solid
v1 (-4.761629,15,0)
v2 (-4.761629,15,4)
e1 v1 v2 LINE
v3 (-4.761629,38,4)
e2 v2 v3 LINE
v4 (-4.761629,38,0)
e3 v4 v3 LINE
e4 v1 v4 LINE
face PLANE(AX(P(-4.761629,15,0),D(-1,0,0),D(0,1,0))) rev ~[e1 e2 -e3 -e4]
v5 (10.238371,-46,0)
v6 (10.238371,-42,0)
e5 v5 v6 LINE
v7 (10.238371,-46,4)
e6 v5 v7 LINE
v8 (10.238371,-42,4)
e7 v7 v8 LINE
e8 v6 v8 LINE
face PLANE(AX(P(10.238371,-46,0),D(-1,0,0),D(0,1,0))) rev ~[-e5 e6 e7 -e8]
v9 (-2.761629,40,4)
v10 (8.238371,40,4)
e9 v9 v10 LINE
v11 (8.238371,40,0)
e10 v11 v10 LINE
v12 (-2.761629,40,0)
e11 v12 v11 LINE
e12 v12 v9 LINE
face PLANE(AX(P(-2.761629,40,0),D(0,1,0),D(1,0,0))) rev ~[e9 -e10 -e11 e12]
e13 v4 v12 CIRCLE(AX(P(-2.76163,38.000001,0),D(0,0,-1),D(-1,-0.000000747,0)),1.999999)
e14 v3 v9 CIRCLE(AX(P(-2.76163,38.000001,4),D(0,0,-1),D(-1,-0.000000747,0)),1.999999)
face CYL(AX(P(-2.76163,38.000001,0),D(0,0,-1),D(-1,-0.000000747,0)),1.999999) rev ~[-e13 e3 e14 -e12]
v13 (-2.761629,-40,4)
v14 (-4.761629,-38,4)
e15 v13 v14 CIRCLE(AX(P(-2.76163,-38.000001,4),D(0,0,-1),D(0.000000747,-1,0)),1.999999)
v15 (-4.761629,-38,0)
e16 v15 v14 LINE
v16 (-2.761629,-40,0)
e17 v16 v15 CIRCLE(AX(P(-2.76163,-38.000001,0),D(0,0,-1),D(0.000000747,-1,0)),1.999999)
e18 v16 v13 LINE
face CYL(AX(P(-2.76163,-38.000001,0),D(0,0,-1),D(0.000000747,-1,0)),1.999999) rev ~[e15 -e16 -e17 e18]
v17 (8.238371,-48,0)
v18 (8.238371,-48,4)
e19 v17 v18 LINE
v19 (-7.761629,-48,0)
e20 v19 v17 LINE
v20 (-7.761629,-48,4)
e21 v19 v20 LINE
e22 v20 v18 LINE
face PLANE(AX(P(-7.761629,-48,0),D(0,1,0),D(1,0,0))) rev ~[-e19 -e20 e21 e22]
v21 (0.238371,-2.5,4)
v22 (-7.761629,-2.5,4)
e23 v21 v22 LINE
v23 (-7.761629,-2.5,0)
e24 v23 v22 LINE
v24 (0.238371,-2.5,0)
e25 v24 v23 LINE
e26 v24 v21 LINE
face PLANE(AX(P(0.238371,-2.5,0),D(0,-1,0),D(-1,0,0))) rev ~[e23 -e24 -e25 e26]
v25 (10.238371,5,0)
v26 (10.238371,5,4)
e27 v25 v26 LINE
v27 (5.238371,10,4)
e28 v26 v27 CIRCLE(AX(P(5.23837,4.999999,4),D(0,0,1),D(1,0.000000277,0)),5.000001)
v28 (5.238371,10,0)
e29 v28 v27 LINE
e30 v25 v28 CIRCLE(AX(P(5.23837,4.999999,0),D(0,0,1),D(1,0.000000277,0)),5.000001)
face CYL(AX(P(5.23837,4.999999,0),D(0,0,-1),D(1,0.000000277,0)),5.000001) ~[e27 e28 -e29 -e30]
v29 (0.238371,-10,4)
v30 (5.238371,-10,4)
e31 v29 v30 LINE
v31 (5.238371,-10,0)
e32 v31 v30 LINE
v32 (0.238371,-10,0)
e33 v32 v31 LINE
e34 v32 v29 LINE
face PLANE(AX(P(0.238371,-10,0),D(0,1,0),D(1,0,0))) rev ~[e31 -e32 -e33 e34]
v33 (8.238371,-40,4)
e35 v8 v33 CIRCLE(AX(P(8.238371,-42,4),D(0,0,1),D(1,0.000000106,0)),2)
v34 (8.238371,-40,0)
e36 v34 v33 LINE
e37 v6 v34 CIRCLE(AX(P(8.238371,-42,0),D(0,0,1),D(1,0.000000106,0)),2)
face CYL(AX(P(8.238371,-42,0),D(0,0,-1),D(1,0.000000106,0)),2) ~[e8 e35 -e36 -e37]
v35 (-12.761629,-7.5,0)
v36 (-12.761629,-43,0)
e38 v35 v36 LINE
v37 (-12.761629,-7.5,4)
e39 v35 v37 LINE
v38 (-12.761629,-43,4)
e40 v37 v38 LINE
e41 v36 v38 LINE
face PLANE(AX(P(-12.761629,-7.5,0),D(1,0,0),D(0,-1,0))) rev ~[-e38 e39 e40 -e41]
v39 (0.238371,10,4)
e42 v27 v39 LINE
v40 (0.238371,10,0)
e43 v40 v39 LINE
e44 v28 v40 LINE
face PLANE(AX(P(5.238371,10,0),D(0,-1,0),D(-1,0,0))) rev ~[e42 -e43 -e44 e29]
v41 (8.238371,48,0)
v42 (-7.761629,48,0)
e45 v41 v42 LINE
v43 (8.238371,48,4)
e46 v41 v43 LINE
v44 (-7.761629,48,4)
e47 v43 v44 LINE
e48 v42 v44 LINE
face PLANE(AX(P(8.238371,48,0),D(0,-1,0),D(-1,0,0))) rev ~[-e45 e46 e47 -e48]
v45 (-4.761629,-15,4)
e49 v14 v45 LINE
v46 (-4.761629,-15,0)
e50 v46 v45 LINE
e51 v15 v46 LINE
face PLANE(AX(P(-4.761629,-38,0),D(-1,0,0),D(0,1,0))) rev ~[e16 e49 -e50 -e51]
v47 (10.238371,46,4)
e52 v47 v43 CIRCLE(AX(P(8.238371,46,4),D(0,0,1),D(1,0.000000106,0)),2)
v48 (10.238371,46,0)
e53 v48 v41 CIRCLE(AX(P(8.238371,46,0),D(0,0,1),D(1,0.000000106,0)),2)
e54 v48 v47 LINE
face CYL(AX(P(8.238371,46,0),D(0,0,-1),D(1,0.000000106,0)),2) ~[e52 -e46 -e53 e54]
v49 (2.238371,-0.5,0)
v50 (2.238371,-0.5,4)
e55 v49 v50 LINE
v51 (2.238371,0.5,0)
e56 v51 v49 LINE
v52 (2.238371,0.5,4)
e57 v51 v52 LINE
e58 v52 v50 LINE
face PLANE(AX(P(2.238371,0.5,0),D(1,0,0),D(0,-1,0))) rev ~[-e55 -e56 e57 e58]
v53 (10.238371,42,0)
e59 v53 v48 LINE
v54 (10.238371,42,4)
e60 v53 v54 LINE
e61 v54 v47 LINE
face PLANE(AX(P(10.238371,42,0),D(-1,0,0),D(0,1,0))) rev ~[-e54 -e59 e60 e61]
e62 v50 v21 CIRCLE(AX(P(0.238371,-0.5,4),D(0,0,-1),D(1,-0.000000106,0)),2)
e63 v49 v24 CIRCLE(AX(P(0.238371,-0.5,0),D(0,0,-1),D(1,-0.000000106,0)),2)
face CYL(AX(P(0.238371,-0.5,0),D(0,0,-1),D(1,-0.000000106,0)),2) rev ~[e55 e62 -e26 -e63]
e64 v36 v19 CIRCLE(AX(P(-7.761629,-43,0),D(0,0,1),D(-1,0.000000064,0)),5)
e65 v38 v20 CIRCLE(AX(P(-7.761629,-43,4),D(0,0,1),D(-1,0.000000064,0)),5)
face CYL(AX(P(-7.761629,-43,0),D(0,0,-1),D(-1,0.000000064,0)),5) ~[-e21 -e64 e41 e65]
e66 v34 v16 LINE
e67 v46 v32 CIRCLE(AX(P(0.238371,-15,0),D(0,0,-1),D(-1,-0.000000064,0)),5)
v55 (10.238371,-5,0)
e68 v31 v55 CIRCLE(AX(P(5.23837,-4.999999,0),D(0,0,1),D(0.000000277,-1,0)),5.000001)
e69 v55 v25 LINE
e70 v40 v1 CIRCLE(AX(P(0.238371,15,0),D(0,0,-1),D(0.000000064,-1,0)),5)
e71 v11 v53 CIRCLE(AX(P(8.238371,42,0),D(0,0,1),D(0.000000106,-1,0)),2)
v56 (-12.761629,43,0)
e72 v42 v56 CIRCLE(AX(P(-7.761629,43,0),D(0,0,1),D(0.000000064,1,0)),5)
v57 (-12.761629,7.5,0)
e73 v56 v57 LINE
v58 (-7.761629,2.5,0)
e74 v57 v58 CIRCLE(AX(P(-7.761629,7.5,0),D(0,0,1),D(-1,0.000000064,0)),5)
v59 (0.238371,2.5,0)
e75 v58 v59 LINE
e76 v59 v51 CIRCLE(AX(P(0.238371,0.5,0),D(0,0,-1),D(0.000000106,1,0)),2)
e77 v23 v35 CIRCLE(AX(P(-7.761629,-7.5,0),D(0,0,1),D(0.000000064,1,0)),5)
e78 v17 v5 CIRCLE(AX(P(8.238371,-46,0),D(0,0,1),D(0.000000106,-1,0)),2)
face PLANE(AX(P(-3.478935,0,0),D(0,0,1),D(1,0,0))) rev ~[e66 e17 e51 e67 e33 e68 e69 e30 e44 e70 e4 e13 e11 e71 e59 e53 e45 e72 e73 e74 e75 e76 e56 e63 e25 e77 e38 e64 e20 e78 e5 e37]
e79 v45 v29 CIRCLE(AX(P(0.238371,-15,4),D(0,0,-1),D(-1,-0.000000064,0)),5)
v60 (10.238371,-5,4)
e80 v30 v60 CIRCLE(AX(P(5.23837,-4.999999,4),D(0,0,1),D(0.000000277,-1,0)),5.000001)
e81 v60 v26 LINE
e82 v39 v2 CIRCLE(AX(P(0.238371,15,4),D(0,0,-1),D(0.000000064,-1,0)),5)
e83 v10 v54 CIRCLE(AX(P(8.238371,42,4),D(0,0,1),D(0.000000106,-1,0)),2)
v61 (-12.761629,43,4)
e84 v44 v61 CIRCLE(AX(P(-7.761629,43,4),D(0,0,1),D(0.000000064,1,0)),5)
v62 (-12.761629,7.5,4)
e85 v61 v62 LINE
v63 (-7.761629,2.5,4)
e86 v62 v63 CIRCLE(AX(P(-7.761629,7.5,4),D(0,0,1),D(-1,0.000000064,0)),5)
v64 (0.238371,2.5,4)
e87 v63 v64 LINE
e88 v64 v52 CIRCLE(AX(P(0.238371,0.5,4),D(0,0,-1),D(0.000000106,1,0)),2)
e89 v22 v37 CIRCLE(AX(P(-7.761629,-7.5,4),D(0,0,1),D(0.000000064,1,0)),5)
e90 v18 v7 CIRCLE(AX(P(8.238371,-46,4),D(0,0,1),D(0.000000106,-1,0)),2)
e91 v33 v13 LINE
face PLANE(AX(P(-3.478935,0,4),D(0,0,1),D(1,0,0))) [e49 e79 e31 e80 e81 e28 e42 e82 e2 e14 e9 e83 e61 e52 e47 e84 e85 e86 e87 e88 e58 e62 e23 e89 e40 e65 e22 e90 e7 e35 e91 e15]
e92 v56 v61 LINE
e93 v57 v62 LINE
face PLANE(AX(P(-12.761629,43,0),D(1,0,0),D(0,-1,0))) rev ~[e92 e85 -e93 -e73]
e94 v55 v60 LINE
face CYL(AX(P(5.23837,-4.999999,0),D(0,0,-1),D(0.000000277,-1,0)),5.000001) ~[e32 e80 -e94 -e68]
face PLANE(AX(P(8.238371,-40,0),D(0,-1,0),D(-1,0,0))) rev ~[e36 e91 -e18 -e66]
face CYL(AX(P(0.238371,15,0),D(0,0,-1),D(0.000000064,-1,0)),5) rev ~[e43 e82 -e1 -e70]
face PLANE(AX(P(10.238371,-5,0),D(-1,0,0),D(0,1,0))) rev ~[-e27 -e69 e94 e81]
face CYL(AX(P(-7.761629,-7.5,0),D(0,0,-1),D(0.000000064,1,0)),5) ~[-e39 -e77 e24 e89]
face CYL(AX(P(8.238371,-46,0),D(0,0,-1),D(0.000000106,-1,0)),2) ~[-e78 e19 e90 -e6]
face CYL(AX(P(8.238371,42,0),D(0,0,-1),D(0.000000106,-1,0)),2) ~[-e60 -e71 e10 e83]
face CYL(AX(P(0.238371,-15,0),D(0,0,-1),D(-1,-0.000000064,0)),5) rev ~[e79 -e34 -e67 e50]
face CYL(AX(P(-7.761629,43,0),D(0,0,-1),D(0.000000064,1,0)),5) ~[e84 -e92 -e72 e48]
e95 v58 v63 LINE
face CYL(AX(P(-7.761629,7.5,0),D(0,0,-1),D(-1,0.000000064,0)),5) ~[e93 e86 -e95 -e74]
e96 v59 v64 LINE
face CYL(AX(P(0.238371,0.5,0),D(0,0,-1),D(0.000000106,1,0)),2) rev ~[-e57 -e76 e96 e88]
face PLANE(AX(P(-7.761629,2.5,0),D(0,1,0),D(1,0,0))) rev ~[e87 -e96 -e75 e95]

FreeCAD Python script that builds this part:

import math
import FreeCAD as App
import Part
import Sketcher
from FreeCAD import Vector

doc = App.newDocument("Part")
body = doc.addObject("PartDesign::Body", "Body")

# Sketch on XY plane
sketch1 = body.newObject("Sketcher::SketchObject", "Sketch")
sketch1.AttachmentSupport = (doc.getObject("XY_Plane"), [""])
sketch1.MapMode = "FlatFace"
sketch1.addGeometry(Part.ArcOfCircle(Part.Circle(Vector(8.2, 46, 0), Vector(0, 0, 1), 2), math.radians(0), math.radians(90)), False)
sketch1.addGeometry(Part.LineSegment(Vector(8.2, 48, 0), Vector(-7.8, 48, 0)), False)
sketch1.addGeometry(Part.ArcOfCircle(Part.Circle(Vector(-7.8, 43, 0), Vector(0, 0, 1), 5), math.radians(90), math.radians(180)), False)
sketch1.addGeometry(Part.LineSegment(Vector(-12.8, 43, 0), Vector(-12.8, 7.5, 0)), False)
sketch1.addGeometry(Part.ArcOfCircle(Part.Circle(Vector(-7.8, 7.5, 0), Vector(0, 0, 1), 5), math.radians(180), math.radians(270)), False)
sketch1.addGeometry(Part.LineSegment(Vector(-7.8, 2.5, 0), Vector(0.2, 2.5, 0)), False)
sketch1.addGeometry(Part.ArcOfCircle(Part.Circle(Vector(0.2, 0.5, 0), Vector(0, 0, 1), 2), math.radians(0), math.radians(90)), False)
sketch1.addGeometry(Part.LineSegment(Vector(2.2, 0.5, 0), Vector(2.2, -0.5, 0)), False)
sketch1.addGeometry(Part.ArcOfCircle(Part.Circle(Vector(0.2, -0.5, 0), Vector(0, 0, 1), 2), math.radians(-90), math.radians(0)), False)
sketch1.addGeometry(Part.LineSegment(Vector(0.2, -2.5, 0), Vector(-7.8, -2.5, 0)), False)
sketch1.addGeometry(Part.ArcOfCircle(Part.Circle(Vector(-7.8, -7.5, 0), Vector(0, 0, 1), 5), math.radians(90), math.radians(180)), False)
sketch1.addGeometry(Part.LineSegment(Vector(-12.8, -7.5, 0), Vector(-12.8, -43, 0)), False)
sketch1.addGeometry(Part.ArcOfCircle(Part.Circle(Vector(-7.8, -43, 0), Vector(0, 0, 1), 5), math.radians(180), math.radians(270)), False)
sketch1.addGeometry(Part.LineSegment(Vector(-7.8, -48, 0), Vector(8.2, -48, 0)), False)
sketch1.addGeometry(Part.ArcOfCircle(Part.Circle(Vector(8.2, -46, 0), Vector(0, 0, 1), 2), math.radians(-90), math.radians(0)), False)
sketch1.addGeometry(Part.LineSegment(Vector(10.2, -46, 0), Vector(10.2, -42, 0)), False)
sketch1.addGeometry(Part.ArcOfCircle(Part.Circle(Vector(8.2, -42, 0), Vector(0, 0, 1), 2), math.radians(0), math.radians(90)), False)
sketch1.addGeometry(Part.LineSegment(Vector(8.2, -40, 0), Vector(-2.8, -40, 0)), False)
sketch1.addGeometry(Part.ArcOfCircle(Part.Circle(Vector(-2.8, -38, 0), Vector(0, 0, 1), 2), math.radians(180), math.radians(270)), False)
sketch1.addGeometry(Part.LineSegment(Vector(-4.8, -38, 0), Vector(-4.8, -15, 0)), False)
sketch1.addGeometry(Part.ArcOfCircle(Part.Circle(Vector(0.2, -15, 0), Vector(0, 0, 1), 5), math.radians(90), math.radians(180)), False)
sketch1.addGeometry(Part.LineSegment(Vector(0.2, -10, 0), Vector(5.2, -10, 0)), False)
sketch1.addGeometry(Part.ArcOfCircle(Part.Circle(Vector(5.2, -5, 0), Vector(0, 0, 1), 5), math.radians(-90), math.radians(0)), False)
sketch1.addGeometry(Part.LineSegment(Vector(10.2, -5, 0), Vector(10.2, 5, 0)), False)
sketch1.addGeometry(Part.ArcOfCircle(Part.Circle(Vector(5.2, 5, 0), Vector(0, 0, 1), 5), math.radians(0), math.radians(90)), False)
sketch1.addGeometry(Part.LineSegment(Vector(5.2, 10, 0), Vector(0.2, 10, 0)), False)
sketch1.addGeometry(Part.ArcOfCircle(Part.Circle(Vector(0.2, 15, 0), Vector(0, 0, 1), 5), math.radians(180), math.radians(270)), False)
sketch1.addGeometry(Part.LineSegment(Vector(-4.8, 15, 0), Vector(-4.8, 38, 0)), False)
sketch1.addGeometry(Part.ArcOfCircle(Part.Circle(Vector(-2.8, 38, 0), Vector(0, 0, 1), 2), math.radians(90), math.radians(180)), False)
sketch1.addGeometry(Part.LineSegment(Vector(-2.8, 40, 0), Vector(8.2, 40, 0)), False)
sketch1.addGeometry(Part.ArcOfCircle(Part.Circle(Vector(8.2, 42, 0), Vector(0, 0, 1), 2), math.radians(-90), math.radians(0)), False)
sketch1.addGeometry(Part.LineSegment(Vector(10.2, 42, 0), Vector(10.2, 46, 0)), False)
sketch1.addConstraint(Sketcher.Constraint("Tangent", 0, 2, 1, 1))
sketch1.addConstraint(Sketcher.Constraint("Tangent", 1, 2, 2, 1))
sketch1.addConstraint(Sketcher.Constraint("Tangent", 2, 2, 3, 1))
sketch1.addConstraint(Sketcher.Constraint("Tangent", 3, 2, 4, 1))
sketch1.addConstraint(Sketcher.Constraint("Tangent", 4, 2, 5, 1))
sketch1.addConstraint(Sketcher.Constraint("Tangent", 5, 2, 6, 2))
sketch1.addConstraint(Sketcher.Constraint("Tangent", 6, 1, 7, 1))
sketch1.addConstraint(Sketcher.Constraint("Tangent", 7, 2, 8, 2))
sketch1.addConstraint(Sketcher.Constraint("Tangent", 8, 1, 9, 1))
sketch1.addConstraint(Sketcher.Constraint("Tangent", 9, 2, 10, 1))
sketch1.addConstraint(Sketcher.Constraint("Tangent", 10, 2, 11, 1))
sketch1.addConstraint(Sketcher.Constraint("Tangent", 11, 2, 12, 1))
sketch1.addConstraint(Sketcher.Constraint("Tangent", 12, 2, 13, 1))
sketch1.addConstraint(Sketcher.Constraint("Tangent", 13, 2, 14, 1))
sketch1.addConstraint(Sketcher.Constraint("Tangent", 14, 2, 15, 1))
sketch1.addConstraint(Sketcher.Constraint("Tangent", 15, 2, 16, 1))
sketch1.addConstraint(Sketcher.Constraint("Tangent", 16, 2, 17, 1))
sketch1.addConstraint(Sketcher.Constraint("Tangent", 17, 2, 18, 2))
sketch1.addConstraint(Sketcher.Constraint("Tangent", 18, 1, 19, 1))
sketch1.addConstraint(Sketcher.Constraint("Tangent", 19, 2, 20, 2))
sketch1.addConstraint(Sketcher.Constraint("Tangent", 20, 1, 21, 1))
sketch1.addConstraint(Sketcher.Constraint("Tangent", 21, 2, 22, 1))
sketch1.addConstraint(Sketcher.Constraint("Tangent", 22, 2, 23, 1))
sketch1.addConstraint(Sketcher.Constraint("Tangent", 23, 2, 24, 1))
sketch1.addConstraint(Sketcher.Constraint("Tangent", 24, 2, 25, 1))
sketch1.addConstraint(Sketcher.Constraint("Tangent", 25, 2, 26, 2))
sketch1.addConstraint(Sketcher.Constraint("Tangent", 26, 1, 27, 1))
sketch1.addConstraint(Sketcher.Constraint("Tangent", 27, 2, 28, 2))
sketch1.addConstraint(Sketcher.Constraint("Tangent", 28, 1, 29, 1))
sketch1.addConstraint(Sketcher.Constraint("Tangent", 29, 2, 30, 1))
sketch1.addConstraint(Sketcher.Constraint("Tangent", 30, 2, 31, 1))
sketch1.addConstraint(Sketcher.Constraint("Tangent", 31, 2, 0, 1))
sketch1.addConstraint(Sketcher.Constraint("Horizontal", 1))
sketch1.addConstraint(Sketcher.Constraint("Vertical", 3))
sketch1.addConstraint(Sketcher.Constraint("Horizontal", 5))
sketch1.addConstraint(Sketcher.Constraint("Vertical", 7))
sketch1.addConstraint(Sketcher.Constraint("Horizontal", 9))
sketch1.addConstraint(Sketcher.Constraint("Vertical", 11))
sketch1.addConstraint(Sketcher.Constraint("Horizontal", 13))
sketch1.addConstraint(Sketcher.Constraint("Vertical", 15))
sketch1.addConstraint(Sketcher.Constraint("Horizontal", 17))
sketch1.addConstraint(Sketcher.Constraint("Vertical", 19))
sketch1.addConstraint(Sketcher.Constraint("Horizontal", 21))
sketch1.addConstraint(Sketcher.Constraint("Vertical", 23))
sketch1.addConstraint(Sketcher.Constraint("Horizontal", 25))
sketch1.addConstraint(Sketcher.Constraint("Vertical", 27))
sketch1.addConstraint(Sketcher.Constraint("Horizontal", 29))
sketch1.addConstraint(Sketcher.Constraint("Vertical", 31))
sketch1.addConstraint(Sketcher.Constraint("Equal", 2, 4))
sketch1.addConstraint(Sketcher.Constraint("Equal", 0, 6))
sketch1.addConstraint(Sketcher.Constraint("Equal", 6, 8))
sketch1.addConstraint(Sketcher.Constraint("Equal", 4, 10))
sketch1.addConstraint(Sketcher.Constraint("Equal", 10, 12))
sketch1.addConstraint(Sketcher.Constraint("Equal", 8, 14))
sketch1.addConstraint(Sketcher.Constraint("Equal", 14, 16))
sketch1.addConstraint(Sketcher.Constraint("Equal", 16, 18))
sketch1.addConstraint(Sketcher.Constraint("Equal", 12, 20))
sketch1.addConstraint(Sketcher.Constraint("Equal", 20, 22))
sketch1.addConstraint(Sketcher.Constraint("Equal", 22, 24))
sketch1.addConstraint(Sketcher.Constraint("Equal", 24, 26))
sketch1.addConstraint(Sketcher.Constraint("Equal", 18, 28))
sketch1.addConstraint(Sketcher.Constraint("Equal", 28, 30))
sketch1.addConstraint(Sketcher.Constraint("Symmetric", 4, 3, 10, 3, -1))
sketch1.addConstraint(Sketcher.Constraint("Symmetric", 0, 3, 14, 3, -1))
sketch1.addConstraint(Sketcher.Constraint("Symmetric", 20, 3, 26, 3, -1))
sketch1.addConstraint(Sketcher.Constraint("Vertical", 8, 3, 20, 3))
sketch1.addConstraint(Sketcher.Constraint("Vertical", 15, 2, 22, 2))
sketch1.addConstraint(Sketcher.Constraint("Equal", 19, 27))
sketch1.addConstraint(Sketcher.Constraint("Radius", 0, 2.0))
sketch1.addConstraint(Sketcher.Constraint("Radius", 2, 5.0))
sketch1.addConstraint(Sketcher.Constraint("DistanceX", 1, 2, 1, 1, 16.0))
sketch1.addConstraint(Sketcher.Constraint("DistanceX", 5, 1, 5, 2, 8.0))
sketch1.addConstraint(Sketcher.Constraint("DistanceY", 7, 2, 7, 1, 1.0))
sketch1.addConstraint(Sketcher.Constraint("DistanceY", 15, 1, 15, 2, 4.0))
sketch1.addConstraint(Sketcher.Constraint("DistanceY", 19, 1, 19, 2, 23.0))
sketch1.addConstraint(Sketcher.Constraint("DistanceY", 23, 1, 23, 2, 10.0))
sketch1.addConstraint(Sketcher.Constraint("DistanceX", -1, 1, 0, 3, 8.238371))
pad1 = body.newObject("PartDesign::Pad", "Pad")
pad1.Profile = sketch1
pad1.Length = 4

doc.recompute()
